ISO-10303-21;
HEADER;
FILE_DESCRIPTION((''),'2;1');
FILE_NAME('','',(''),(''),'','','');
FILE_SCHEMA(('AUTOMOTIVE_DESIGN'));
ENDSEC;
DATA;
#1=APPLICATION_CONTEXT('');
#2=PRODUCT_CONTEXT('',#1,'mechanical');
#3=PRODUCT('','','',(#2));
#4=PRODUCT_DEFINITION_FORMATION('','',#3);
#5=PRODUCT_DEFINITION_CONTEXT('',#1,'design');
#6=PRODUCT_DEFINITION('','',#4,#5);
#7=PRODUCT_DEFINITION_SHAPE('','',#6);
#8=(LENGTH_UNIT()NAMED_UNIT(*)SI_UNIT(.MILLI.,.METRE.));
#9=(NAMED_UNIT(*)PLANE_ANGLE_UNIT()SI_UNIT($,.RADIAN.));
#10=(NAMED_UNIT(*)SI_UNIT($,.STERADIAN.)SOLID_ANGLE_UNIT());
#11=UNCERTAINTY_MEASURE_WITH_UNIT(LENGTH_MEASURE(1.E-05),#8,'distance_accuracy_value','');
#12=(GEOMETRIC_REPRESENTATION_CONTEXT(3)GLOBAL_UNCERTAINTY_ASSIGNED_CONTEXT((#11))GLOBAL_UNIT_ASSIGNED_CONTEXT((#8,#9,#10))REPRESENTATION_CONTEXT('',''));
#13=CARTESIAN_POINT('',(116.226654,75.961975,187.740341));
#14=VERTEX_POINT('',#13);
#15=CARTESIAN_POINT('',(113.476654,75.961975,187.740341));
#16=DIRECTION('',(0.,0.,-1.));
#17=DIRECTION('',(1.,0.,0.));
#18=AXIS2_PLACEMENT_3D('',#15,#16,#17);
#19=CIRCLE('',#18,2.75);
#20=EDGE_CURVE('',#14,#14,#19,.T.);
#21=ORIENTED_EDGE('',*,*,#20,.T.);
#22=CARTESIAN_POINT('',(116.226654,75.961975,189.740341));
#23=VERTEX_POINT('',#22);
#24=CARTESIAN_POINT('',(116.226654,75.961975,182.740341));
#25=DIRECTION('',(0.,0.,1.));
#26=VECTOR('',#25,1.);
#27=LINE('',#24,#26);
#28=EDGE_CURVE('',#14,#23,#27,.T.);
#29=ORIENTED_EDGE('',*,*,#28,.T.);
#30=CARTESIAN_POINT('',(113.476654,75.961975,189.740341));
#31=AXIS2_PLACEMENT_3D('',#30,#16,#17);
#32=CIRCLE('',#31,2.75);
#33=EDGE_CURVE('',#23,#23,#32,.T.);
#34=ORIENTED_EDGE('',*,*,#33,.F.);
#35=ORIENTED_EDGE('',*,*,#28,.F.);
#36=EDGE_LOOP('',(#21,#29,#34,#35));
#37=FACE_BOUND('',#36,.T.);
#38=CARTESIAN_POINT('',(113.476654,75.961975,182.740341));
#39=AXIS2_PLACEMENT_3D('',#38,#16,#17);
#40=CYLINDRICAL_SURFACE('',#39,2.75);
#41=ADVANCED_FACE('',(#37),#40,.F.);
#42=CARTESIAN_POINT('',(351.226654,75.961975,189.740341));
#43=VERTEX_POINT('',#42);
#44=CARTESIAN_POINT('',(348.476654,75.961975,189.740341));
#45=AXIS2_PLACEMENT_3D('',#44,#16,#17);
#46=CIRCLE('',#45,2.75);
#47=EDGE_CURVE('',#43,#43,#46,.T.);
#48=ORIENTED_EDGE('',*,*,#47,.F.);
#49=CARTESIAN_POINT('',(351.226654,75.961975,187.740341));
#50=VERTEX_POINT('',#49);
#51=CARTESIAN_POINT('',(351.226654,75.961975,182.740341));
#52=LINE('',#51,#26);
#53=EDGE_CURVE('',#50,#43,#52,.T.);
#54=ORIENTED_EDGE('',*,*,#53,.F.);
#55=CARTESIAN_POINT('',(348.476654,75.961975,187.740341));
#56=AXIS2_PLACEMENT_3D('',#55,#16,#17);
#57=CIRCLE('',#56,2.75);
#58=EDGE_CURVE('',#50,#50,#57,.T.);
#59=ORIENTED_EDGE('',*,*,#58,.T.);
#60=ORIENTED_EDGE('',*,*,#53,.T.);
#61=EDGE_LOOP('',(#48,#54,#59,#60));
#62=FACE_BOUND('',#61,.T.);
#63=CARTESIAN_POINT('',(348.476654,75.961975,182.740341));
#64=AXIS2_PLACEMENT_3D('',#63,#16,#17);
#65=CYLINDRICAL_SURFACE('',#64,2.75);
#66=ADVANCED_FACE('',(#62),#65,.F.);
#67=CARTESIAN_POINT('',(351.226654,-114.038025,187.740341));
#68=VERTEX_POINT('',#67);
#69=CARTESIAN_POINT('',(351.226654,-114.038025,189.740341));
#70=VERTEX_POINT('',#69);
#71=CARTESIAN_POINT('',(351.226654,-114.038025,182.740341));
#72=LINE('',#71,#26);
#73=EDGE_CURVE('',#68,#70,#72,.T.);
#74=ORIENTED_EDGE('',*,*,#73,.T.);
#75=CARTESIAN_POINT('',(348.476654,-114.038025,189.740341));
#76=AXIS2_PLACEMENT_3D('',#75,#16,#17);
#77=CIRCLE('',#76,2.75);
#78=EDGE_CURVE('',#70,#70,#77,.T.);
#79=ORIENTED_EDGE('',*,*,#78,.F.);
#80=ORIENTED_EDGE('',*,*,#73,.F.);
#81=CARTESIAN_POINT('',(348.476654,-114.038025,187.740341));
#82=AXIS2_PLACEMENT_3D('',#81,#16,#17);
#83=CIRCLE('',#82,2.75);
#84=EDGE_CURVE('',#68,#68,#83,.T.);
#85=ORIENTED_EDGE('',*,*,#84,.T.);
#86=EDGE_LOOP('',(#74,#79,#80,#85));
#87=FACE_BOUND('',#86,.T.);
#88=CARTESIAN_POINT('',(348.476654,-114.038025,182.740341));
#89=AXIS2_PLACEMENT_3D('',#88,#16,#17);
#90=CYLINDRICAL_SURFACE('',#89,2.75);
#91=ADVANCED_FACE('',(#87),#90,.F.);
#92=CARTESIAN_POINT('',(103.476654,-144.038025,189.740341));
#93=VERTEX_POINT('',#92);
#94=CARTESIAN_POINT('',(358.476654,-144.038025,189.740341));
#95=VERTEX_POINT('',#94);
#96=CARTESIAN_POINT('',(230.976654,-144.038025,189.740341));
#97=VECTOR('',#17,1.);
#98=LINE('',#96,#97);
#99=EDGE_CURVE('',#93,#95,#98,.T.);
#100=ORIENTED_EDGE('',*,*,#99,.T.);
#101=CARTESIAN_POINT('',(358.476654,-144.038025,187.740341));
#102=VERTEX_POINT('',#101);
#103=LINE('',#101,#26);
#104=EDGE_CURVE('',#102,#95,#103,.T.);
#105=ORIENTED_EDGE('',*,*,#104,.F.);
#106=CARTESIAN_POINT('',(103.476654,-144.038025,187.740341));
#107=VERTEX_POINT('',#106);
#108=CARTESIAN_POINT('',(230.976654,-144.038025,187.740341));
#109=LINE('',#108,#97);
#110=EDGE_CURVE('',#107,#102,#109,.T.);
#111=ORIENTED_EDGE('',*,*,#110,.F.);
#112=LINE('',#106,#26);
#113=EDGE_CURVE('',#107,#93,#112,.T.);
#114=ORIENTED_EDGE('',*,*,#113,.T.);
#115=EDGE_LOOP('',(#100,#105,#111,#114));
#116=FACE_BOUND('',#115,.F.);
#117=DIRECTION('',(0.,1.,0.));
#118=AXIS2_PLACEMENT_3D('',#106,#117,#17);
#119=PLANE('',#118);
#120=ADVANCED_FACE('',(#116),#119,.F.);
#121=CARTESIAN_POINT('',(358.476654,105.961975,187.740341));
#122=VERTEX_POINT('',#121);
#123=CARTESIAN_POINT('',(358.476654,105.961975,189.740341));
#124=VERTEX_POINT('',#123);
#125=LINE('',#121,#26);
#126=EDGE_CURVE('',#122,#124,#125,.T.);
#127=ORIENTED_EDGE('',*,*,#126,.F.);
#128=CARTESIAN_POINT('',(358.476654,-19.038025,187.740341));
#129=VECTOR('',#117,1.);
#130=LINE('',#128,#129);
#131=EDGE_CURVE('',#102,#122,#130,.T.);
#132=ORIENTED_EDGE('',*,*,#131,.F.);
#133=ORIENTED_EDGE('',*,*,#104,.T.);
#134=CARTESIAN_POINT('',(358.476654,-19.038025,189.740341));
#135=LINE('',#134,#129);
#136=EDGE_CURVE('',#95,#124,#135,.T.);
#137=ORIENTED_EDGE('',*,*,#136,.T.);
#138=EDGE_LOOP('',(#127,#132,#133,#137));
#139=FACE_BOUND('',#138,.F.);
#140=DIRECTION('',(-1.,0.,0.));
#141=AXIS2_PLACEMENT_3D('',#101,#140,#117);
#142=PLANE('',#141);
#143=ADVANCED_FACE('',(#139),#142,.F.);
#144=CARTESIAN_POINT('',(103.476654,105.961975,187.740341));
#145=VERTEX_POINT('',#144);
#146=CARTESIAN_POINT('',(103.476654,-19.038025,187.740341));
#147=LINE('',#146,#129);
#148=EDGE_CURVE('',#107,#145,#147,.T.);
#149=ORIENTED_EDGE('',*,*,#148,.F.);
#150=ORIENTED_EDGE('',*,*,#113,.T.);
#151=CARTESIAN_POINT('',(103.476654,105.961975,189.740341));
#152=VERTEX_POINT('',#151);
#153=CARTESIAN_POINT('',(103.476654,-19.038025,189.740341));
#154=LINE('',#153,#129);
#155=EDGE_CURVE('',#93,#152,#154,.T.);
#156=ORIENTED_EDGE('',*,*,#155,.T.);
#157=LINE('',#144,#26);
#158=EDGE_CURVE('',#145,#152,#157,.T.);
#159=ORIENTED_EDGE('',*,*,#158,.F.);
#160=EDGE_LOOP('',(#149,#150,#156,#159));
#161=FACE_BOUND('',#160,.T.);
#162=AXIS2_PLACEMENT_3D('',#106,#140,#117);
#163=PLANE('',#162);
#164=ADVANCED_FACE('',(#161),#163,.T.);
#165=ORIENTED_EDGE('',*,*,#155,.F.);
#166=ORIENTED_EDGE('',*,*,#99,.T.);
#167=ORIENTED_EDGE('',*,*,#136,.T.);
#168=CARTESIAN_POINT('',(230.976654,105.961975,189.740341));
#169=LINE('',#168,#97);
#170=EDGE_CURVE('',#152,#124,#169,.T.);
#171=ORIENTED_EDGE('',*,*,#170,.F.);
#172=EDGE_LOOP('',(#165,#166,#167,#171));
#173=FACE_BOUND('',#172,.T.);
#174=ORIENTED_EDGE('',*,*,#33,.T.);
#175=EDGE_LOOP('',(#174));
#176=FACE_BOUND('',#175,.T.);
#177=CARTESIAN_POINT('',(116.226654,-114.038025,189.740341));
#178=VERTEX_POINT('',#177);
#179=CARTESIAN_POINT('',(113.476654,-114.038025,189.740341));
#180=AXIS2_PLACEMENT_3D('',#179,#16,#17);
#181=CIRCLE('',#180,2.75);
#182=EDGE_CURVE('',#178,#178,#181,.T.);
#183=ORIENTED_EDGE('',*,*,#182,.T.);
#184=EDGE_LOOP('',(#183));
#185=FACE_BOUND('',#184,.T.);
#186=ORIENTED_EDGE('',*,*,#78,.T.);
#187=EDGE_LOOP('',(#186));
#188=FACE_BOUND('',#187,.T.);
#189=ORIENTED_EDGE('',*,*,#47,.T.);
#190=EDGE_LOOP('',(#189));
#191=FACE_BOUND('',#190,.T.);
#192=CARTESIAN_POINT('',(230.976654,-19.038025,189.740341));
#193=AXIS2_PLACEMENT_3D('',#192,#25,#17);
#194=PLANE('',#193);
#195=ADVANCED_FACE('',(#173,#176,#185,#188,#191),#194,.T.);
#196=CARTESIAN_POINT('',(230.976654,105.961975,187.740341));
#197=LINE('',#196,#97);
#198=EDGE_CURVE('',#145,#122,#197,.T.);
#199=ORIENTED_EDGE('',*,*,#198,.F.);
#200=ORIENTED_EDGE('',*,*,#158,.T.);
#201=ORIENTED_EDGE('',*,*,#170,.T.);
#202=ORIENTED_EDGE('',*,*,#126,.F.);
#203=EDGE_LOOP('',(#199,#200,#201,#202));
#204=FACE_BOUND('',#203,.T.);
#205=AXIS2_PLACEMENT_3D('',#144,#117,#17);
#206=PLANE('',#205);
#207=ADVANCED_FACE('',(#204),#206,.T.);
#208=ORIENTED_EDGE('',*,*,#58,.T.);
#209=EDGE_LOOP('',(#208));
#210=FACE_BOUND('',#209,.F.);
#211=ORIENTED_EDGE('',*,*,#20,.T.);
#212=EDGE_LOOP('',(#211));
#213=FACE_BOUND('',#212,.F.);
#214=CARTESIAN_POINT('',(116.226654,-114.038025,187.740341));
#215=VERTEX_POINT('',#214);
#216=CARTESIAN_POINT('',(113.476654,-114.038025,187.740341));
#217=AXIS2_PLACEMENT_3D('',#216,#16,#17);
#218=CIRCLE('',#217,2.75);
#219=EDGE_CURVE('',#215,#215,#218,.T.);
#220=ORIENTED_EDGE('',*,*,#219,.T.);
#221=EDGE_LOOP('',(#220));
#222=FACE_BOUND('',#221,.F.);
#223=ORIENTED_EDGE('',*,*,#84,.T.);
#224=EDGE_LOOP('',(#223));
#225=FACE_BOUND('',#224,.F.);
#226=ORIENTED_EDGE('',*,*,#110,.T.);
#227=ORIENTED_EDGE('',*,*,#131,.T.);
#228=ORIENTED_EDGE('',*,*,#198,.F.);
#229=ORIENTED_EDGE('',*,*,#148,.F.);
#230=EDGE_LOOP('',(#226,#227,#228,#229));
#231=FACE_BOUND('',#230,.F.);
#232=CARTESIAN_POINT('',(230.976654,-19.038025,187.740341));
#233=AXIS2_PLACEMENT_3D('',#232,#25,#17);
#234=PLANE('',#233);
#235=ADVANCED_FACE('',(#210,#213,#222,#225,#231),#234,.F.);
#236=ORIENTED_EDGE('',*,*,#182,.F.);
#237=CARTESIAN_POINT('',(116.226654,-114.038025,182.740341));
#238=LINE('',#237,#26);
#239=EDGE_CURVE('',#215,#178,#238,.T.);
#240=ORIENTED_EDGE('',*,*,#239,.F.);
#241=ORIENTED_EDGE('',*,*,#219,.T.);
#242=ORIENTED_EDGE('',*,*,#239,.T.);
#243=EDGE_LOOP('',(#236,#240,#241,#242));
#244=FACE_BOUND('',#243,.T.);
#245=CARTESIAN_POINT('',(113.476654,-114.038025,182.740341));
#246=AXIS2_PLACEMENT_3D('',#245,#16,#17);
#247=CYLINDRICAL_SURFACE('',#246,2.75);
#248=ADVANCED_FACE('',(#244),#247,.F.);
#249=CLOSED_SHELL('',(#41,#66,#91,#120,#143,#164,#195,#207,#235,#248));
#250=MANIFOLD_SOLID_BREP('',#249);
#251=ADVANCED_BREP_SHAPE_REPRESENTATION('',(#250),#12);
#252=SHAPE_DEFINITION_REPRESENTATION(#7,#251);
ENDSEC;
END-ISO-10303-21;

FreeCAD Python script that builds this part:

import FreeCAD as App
import Part
import Sketcher

V = App.Vector
Q = App.Units.Quantity


def add_polygon(sketch, points):
    """Adds a closed chain of lines whose ends are joined by coincident constraints."""
    first, n = sketch.GeometryCount, len(points)
    for a, b in zip(points, points[1:] + points[:1]):
        sketch.addGeometry(Part.LineSegment(App.Vector(*a, 0), App.Vector(*b, 0)), False)
    for i in range(n):
        sketch.addConstraint(Sketcher.Constraint("Coincident", first + i, 2, first + (i + 1) % n, 1))

doc = App.newDocument("Part")
body = doc.addObject("PartDesign::Body", "Body")

sketch1 = body.newObject("Sketcher::SketchObject", "Sketch")
sketch1.AttachmentSupport = (doc.getObject("XY_Plane"), [""])
sketch1.MapMode = "FlatFace"
sketch1.AttachmentOffset = App.Placement(V(0, 0, -5), App.Rotation())
sketch1.addGeometry(Part.Circle(V(245, 220, 0), V(0, 0, 1), 2.75), False)
sketch1.addConstraint([
    Sketcher.Constraint("Diameter", 0, Q("5.5 mm")),
    Sketcher.Constraint("DistanceX", -1, 1, 0, 3, Q("245 mm")),
    Sketcher.Constraint("DistanceY", -1, 1, 0, 3, Q("220 mm")),
])
pad1 = body.newObject("PartDesign::Pad", "Pad")
pad1.Profile = sketch1
pad1.Length = 10
body2 = doc.addObject("PartDesign::Body", "Body001")

sketch2 = body2.newObject("Sketcher::SketchObject", "Sketch001")
sketch2.AttachmentSupport = (doc.getObject("XY_Plane001"), [""])
sketch2.MapMode = "FlatFace"
sketch2.AttachmentOffset = App.Placement(V(0, 0, -5), App.Rotation())
sketch2.addGeometry(Part.Circle(V(245, 30, 0), V(0, 0, 1), 2.75), False)
sketch2.addConstraint([
    Sketcher.Constraint("Diameter", 0, Q("5.5 mm")),
    Sketcher.Constraint("DistanceX", -1, 1, 0, 3, Q("245 mm")),
    Sketcher.Constraint("DistanceY", -1, 1, 0, 3, Q("30 mm")),
])
pad2 = body2.newObject("PartDesign::Pad", "Pad001")
pad2.Profile = sketch2
pad2.Length = 10
body3 = doc.addObject("PartDesign::Body", "Body002")

sketch3 = body3.newObject("Sketcher::SketchObject", "Sketch002")
sketch3.AttachmentSupport = (doc.getObject("XY_Plane002"), [""])
sketch3.MapMode = "FlatFace"
sketch3.AttachmentOffset = App.Placement(V(0, 0, -5), App.Rotation())
sketch3.addGeometry(Part.Circle(V(10, 220, 0), V(0, 0, 1), 2.75), False)
sketch3.addConstraint([
    Sketcher.Constraint("Diameter", 0, Q("5.5 mm")),
    Sketcher.Constraint("DistanceX", -1, 1, 0, 3, Q("10 mm")),
    Sketcher.Constraint("DistanceY", -1, 1, 0, 3, Q("220 mm")),
])
pad3 = body3.newObject("PartDesign::Pad", "Pad002")
pad3.Profile = sketch3
pad3.Length = 10
body4 = doc.addObject("PartDesign::Body", "Body003")

sketch4 = body4.newObject("Sketcher::SketchObject", "Sketch003")
sketch4.AttachmentSupport = (doc.getObject("XY_Plane003"), [""])
sketch4.MapMode = "FlatFace"
sketch4.AttachmentOffset = App.Placement(V(0, 0, -5), App.Rotation())
sketch4.addGeometry(Part.Circle(V(10, 30, 0), V(0, 0, 1), 2.75), False)
sketch4.addConstraint([
    Sketcher.Constraint("Diameter", 0, Q("5.5 mm")),
    Sketcher.Constraint("DistanceX", -1, 1, 0, 3, Q("10 mm")),
    Sketcher.Constraint("DistanceY", -1, 1, 0, 3, Q("30 mm")),
])
pad4 = body4.newObject("PartDesign::Pad", "Pad003")
pad4.Profile = sketch4
pad4.Length = 10
body5 = doc.addObject("PartDesign::Body", "Body004")

sketch5 = body5.newObject("Sketcher::SketchObject", "Sketch004")
sketch5.AttachmentSupport = (doc.getObject("XY_Plane004"), [""])
sketch5.MapMode = "FlatFace"
add_polygon(sketch5, [(0, 250), (0, 0), (255, 0), (255, 250)])
sketch5.addConstraint([
    Sketcher.Constraint("Vertical", 0),
    Sketcher.Constraint("Horizontal", 1),
    Sketcher.Constraint("Vertical", 2),
    Sketcher.Constraint("Horizontal", 3),
    Sketcher.Constraint("Coincident", 0, 2, -1, 1),
    Sketcher.Constraint("DistanceX", 1, 1, 1, 2, Q("255 mm")),
    Sketcher.Constraint("DistanceY", 0, 2, 0, 1, Q("250 mm")),
])
pad5 = body5.newObject("PartDesign::Pad", "Pad004")
pad5.Profile = sketch5
pad5.Length = 2
doc.recompute()

boolean = body5.newObject("PartDesign::Boolean", "Boolean")
boolean.Type = "Cut"
boolean.addObjects([body4])
doc.recompute()

boolean2 = body5.newObject("PartDesign::Boolean", "Boolean001")
boolean2.Type = "Cut"
boolean2.addObjects([body3])
doc.recompute()

boolean3 = body5.newObject("PartDesign::Boolean", "Boolean002")
boolean3.Type = "Cut"
boolean3.addObjects([body2])
doc.recompute()

boolean4 = body5.newObject("PartDesign::Boolean", "Boolean003")
boolean4.Type = "Cut"
boolean4.addObjects([body])
body6 = doc.addObject("PartDesign::Body", "Body005")
doc.recompute()

body5.Placement = App.Placement(V(103.476654, -144.038025, 187.740341), App.Rotation(V(0, 0, 1), 0))
boolean5 = body6.newObject("PartDesign::Boolean", "Boolean004")
boolean5.Type = "Fuse"
boolean5.addObjects([body5])

doc.recompute()
